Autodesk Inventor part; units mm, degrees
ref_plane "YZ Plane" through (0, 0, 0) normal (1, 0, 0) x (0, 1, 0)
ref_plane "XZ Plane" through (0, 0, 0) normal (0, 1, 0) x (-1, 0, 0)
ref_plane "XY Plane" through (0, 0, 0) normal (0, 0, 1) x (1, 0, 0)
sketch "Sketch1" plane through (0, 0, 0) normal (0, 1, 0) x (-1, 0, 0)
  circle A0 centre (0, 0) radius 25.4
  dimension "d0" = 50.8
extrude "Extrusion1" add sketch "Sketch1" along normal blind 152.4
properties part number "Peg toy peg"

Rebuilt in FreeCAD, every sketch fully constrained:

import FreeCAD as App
import Part
import Sketcher
from FreeCAD import Vector
Q = App.Units.Quantity

doc = App.newDocument("Part")
body = doc.addObject("PartDesign::Body", "Body")

# Sketch on XZ plane
sketch1 = body.newObject("Sketcher::SketchObject", "Sketch")
sketch1.AttachmentSupport = (doc.getObject("XZ_Plane"), [""])
sketch1.MapMode = "FlatFace"
sketch1.addGeometry(Part.Circle(Vector(0, 0, 0), Vector(0, 0, 1), 25), False)
sketch1.addConstraint(Sketcher.Constraint("Coincident", 0, 3, -1, 1))
sketch1.addConstraint(Sketcher.Constraint("Diameter", 0, Q("2 in")))
pad1 = body.newObject("PartDesign::Pad", "Pad")
pad1.Profile = sketch1
pad1.Length = Q("6 in")
pad1.Reversed = True

doc.recompute()
